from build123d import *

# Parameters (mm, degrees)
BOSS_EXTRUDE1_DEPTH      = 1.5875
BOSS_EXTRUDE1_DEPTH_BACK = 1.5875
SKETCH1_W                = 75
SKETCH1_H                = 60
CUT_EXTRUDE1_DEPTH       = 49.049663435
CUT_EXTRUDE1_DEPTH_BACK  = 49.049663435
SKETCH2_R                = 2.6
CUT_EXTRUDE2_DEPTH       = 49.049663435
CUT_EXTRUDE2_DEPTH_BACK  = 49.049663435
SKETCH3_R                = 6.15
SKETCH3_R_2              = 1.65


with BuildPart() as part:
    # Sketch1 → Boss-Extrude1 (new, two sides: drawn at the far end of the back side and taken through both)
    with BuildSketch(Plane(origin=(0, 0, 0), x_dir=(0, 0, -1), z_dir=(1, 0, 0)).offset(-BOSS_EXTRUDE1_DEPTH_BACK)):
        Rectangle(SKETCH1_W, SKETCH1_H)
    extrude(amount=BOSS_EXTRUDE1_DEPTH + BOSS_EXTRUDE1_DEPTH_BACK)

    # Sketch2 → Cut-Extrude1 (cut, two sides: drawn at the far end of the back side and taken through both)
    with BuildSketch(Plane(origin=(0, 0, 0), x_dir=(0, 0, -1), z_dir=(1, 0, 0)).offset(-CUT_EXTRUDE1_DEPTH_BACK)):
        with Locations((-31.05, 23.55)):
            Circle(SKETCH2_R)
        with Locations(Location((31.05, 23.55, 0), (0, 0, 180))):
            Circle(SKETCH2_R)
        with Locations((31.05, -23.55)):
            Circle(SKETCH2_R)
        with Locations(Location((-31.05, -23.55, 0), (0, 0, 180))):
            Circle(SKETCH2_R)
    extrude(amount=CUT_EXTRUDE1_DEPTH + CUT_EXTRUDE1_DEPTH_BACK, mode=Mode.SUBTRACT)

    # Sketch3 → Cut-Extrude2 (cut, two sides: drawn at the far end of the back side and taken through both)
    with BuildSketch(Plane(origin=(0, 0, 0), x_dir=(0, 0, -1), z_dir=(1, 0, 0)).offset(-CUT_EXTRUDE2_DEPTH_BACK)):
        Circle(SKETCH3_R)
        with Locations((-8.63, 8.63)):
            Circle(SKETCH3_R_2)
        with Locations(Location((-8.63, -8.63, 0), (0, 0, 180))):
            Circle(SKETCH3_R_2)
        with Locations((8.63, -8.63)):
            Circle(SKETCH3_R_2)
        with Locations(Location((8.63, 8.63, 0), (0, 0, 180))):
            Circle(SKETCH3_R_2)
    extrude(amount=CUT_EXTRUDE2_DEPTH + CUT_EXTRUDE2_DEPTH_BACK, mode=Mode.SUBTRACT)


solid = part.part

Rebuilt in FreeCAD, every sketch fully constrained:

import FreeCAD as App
import Part
import Sketcher

V = App.Vector


def add_polygon(sketch, points):
    """Adds a closed chain of lines whose ends are joined by coincident constraints."""
    first, n = sketch.GeometryCount, len(points)
    for a, b in zip(points, points[1:] + points[:1]):
        sketch.addGeometry(Part.LineSegment(App.Vector(*a, 0), App.Vector(*b, 0)), False)
    for i in range(n):
        sketch.addConstraint(Sketcher.Constraint("Coincident", first + i, 2, first + (i + 1) % n, 1))

doc = App.newDocument("Part")
body = doc.addObject("PartDesign::Body", "Body")

# Sketch on YZ plane
sketch1 = body.newObject("Sketcher::SketchObject", "Sketch")
sketch1.AttachmentSupport = (doc.getObject("YZ_Plane"), [""])
sketch1.MapMode = "FlatFace"
add_polygon(sketch1, [(30, 38), (-30, 38), (-30, -38), (30, -38)])  # lines 0-3
sketch1.addConstraint(Sketcher.Constraint("Horizontal", 0))
sketch1.addConstraint(Sketcher.Constraint("Vertical", 1))
sketch1.addConstraint(Sketcher.Constraint("Horizontal", 2))
sketch1.addConstraint(Sketcher.Constraint("Vertical", 3))
sketch1.addConstraint(Sketcher.Constraint("Symmetric", 0, 2, 2, 2, -1, 1))
sketch1.addConstraint(Sketcher.Constraint("DistanceX", 0, 2, 0, 1, 60.0))
sketch1.addConstraint(Sketcher.Constraint("DistanceY", 1, 2, 1, 1, 75.0))
pad1 = body.newObject("PartDesign::Pad", "Pad")
pad1.Profile = sketch1
pad1.Type = "TwoLengths"
pad1.Length = 1.5875
pad1.Length2 = 1.5875

# Sketch on YZ plane
sketch2 = body.newObject("Sketcher::SketchObject", "Sketch001")
sketch2.AttachmentSupport = (doc.getObject("YZ_Plane"), [""])
sketch2.MapMode = "FlatFace"
sketch2.addGeometry(Part.Circle(V(23.6, 31.1, 0), V(0, 0, 1), 2.6), False)
sketch2.addGeometry(Part.Circle(V(23.6, -31.1, 0), V(0, 0, 1), 2.6), False)
sketch2.addGeometry(Part.Circle(V(-23.6, -31.1, 0), V(0, 0, 1), 2.6), False)
sketch2.addGeometry(Part.Circle(V(-23.6, 31.1, 0), V(0, 0, 1), 2.6), False)
sketch2.addConstraint(Sketcher.Constraint("Equal", 0, 1))
sketch2.addConstraint(Sketcher.Constraint("Equal", 1, 2))
sketch2.addConstraint(Sketcher.Constraint("Equal", 2, 3))
sketch2.addConstraint(Sketcher.Constraint("Symmetric", 0, 3, 2, 3, -1, 1))
sketch2.addConstraint(Sketcher.Constraint("Symmetric", 1, 3, 3, 3, -1, 1))
sketch2.addConstraint(Sketcher.Constraint("Symmetric", 1, 3, 2, 3, -2))
sketch2.addConstraint(Sketcher.Constraint("Diameter", 0, 5.2))
sketch2.addConstraint(Sketcher.Constraint("DistanceY", 1, 3, 0, 3, 62.1))
sketch2.addConstraint(Sketcher.Constraint("DistanceX", 2, 3, 1, 3, 47.1))
pocket1 = body.newObject("PartDesign::Pocket", "Pocket")
pocket1.Profile = sketch2
pocket1.Type = "ThroughAll"
pocket1.Midplane = True

# Sketch on YZ plane
sketch3 = body.newObject("Sketcher::SketchObject", "Sketch002")
sketch3.AttachmentSupport = (doc.getObject("YZ_Plane"), [""])
sketch3.MapMode = "FlatFace"
sketch3.addGeometry(Part.Circle(V(0, 0, 0), V(0, 0, 1), 6.2), False)
sketch3.addGeometry(Part.Circle(V(8.6, 8.6, 0), V(0, 0, 1), 1.6), False)
sketch3.addGeometry(Part.Circle(V(-8.6, 8.6, 0), V(0, 0, 1), 1.6), False)
sketch3.addGeometry(Part.Circle(V(-8.6, -8.6, 0), V(0, 0, 1), 1.6), False)
sketch3.addGeometry(Part.Circle(V(8.6, -8.6, 0), V(0, 0, 1), 1.6), False)
sketch3.addConstraint(Sketcher.Constraint("Coincident", 0, 3, -1, 1))
sketch3.addConstraint(Sketcher.Constraint("Equal", 1, 2))
sketch3.addConstraint(Sketcher.Constraint("Equal", 2, 3))
sketch3.addConstraint(Sketcher.Constraint("Equal", 3, 4))
sketch3.addConstraint(Sketcher.Constraint("Symmetric", 1, 3, 3, 3, -1, 1))
sketch3.addConstraint(Sketcher.Constraint("Symmetric", 2, 3, 4, 3, -1, 1))
sketch3.addConstraint(Sketcher.Constraint("Symmetric", 1, 3, 2, 3, -2))
sketch3.addConstraint(Sketcher.Constraint("Diameter", 0, 12.3))
sketch3.addConstraint(Sketcher.Constraint("Diameter", 1, 3.3))
sketch3.addConstraint(Sketcher.Constraint("DistanceX", -1, 1, 1, 3, 8.63))
sketch3.addConstraint(Sketcher.Constraint("DistanceY", -1, 1, 1, 3, 8.63))
pocket2 = body.newObject("PartDesign::Pocket", "Pocket001")
pocket2.Profile = sketch3
pocket2.Type = "ThroughAll"
pocket2.Midplane = True

doc.recompute()
